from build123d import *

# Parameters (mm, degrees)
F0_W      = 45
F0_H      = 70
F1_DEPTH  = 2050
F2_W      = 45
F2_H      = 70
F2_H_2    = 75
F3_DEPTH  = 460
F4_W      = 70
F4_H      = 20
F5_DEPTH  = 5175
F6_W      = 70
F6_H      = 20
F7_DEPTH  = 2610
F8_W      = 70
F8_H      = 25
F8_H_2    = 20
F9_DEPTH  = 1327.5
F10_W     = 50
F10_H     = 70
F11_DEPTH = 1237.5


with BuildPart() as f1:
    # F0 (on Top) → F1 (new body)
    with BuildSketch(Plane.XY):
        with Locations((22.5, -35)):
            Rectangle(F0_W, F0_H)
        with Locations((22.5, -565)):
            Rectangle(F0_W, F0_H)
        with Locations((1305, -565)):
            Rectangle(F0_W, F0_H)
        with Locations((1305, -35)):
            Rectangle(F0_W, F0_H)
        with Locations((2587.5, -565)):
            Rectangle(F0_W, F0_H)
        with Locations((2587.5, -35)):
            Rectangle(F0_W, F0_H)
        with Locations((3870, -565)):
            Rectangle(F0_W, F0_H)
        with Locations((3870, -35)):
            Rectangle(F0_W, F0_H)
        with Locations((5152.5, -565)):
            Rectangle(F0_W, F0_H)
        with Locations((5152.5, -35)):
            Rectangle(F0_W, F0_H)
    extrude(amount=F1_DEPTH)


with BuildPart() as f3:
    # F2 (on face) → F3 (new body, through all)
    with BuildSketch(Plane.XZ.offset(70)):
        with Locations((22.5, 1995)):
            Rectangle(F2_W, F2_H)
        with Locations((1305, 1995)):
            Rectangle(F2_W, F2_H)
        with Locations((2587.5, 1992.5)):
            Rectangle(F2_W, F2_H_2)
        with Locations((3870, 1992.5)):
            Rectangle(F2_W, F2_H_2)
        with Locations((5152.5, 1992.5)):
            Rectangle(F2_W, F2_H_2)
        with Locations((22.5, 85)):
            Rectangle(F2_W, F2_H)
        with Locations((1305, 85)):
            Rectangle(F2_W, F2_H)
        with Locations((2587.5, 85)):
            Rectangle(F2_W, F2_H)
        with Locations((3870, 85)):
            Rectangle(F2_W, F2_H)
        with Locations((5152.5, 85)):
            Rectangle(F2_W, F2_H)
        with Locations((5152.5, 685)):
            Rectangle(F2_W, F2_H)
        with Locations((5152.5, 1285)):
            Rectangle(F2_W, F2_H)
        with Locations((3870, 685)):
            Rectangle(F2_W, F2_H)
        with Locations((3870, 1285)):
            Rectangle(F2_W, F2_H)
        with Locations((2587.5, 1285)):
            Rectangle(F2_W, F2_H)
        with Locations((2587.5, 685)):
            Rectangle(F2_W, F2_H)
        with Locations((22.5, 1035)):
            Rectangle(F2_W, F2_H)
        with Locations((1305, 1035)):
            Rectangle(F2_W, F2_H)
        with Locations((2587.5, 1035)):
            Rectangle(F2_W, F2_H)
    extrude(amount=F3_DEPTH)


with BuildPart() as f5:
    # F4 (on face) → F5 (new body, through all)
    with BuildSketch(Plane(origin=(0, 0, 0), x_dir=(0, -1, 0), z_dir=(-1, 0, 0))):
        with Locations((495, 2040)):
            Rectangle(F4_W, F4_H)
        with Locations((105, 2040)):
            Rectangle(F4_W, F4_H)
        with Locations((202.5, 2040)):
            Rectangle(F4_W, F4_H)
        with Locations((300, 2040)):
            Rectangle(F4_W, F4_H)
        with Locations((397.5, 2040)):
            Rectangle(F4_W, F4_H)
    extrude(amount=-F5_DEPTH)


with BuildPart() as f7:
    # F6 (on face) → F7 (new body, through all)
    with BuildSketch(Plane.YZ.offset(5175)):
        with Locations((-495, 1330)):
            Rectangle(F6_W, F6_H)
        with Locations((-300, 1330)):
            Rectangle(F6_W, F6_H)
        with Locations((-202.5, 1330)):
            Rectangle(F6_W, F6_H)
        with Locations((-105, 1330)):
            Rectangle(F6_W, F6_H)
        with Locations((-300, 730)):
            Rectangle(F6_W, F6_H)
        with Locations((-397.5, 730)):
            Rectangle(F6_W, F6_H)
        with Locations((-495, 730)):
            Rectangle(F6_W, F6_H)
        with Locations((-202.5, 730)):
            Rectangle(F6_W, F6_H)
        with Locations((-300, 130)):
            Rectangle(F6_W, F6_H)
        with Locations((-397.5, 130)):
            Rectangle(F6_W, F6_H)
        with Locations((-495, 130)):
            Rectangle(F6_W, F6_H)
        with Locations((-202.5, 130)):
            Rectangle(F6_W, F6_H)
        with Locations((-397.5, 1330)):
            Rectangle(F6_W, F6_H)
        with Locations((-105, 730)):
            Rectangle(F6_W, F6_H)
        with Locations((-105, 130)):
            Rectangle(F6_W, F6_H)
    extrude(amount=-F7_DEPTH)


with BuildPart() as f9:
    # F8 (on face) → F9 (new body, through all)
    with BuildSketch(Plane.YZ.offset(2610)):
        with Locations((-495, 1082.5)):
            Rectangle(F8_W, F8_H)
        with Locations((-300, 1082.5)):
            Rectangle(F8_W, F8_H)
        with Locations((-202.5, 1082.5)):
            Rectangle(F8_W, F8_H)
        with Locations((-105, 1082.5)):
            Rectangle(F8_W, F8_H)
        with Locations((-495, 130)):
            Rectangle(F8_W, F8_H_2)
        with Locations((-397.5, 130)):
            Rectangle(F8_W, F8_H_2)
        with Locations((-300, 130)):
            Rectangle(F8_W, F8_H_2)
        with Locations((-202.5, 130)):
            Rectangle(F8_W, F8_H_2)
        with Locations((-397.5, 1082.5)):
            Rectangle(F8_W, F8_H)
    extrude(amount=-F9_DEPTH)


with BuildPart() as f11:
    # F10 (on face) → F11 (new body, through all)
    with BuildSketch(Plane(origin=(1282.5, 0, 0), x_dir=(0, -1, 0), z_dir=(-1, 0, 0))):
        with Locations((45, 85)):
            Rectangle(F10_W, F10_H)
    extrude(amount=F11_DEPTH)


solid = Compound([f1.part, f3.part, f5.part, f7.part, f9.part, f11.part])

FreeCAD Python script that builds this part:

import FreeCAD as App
import Part
import Sketcher

V = App.Vector
Q = App.Units.Quantity


def add_polygon(sketch, points):
    """Adds a closed chain of lines whose ends are joined by coincident constraints."""
    first, n = sketch.GeometryCount, len(points)
    for a, b in zip(points, points[1:] + points[:1]):
        sketch.addGeometry(Part.LineSegment(App.Vector(*a, 0), App.Vector(*b, 0)), False)
    for i in range(n):
        sketch.addConstraint(Sketcher.Constraint("Coincident", first + i, 2, first + (i + 1) % n, 1))

doc = App.newDocument("Part")
body = doc.addObject("PartDesign::Body", "Body")
body.AllowCompound = True

# Sketch on XY plane
sketch1 = doc.addObject("Sketcher::SketchObject", "Sketch")
body.addObject(sketch1)
sketch1.AttachmentSupport = (doc.XY_Plane, [""])
sketch1.MapMode = "FlatFace"
add_polygon(sketch1, [(0, 0), (0, -70), (45, -70), (45, 0)])  # lines 0-3
add_polygon(sketch1, [(0, -530), (0, -600), (45, -600), (45, -530)])  # lines 4-7
add_polygon(sketch1, [(1282.5, -530), (1282.5, -600), (1327.5, -600), (1327.5, -530)])  # lines 8-11
add_polygon(sketch1, [(1282.5, 0), (1282.5, -70), (1327.5, -70), (1327.5, 0)])  # lines 12-15
add_polygon(sketch1, [(2565, -530), (2565, -600), (2610, -600), (2610, -530)])  # lines 16-19
add_polygon(sketch1, [(2565, 0), (2565, -70), (2610, -70), (2610, 0)])  # lines 20-23
add_polygon(sketch1, [(3847.5, -530), (3847.5, -600), (3892.5, -600), (3892.5, -530)])  # lines 24-27
add_polygon(sketch1, [(3847.5, 0), (3847.5, -70), (3892.5, -70), (3892.5, 0)])  # lines 28-31
add_polygon(sketch1, [(5130, -530), (5130, -600), (5175, -600), (5175, -530)])  # lines 32-35
add_polygon(sketch1, [(5130, 0), (5130, -70), (5175, -70), (5175, 0)])  # lines 36-39
sketch1.addConstraint([
    Sketcher.Constraint("Vertical", 0),
    Sketcher.Constraint("Horizontal", 1),
    Sketcher.Constraint("Vertical", 2),
    Sketcher.Constraint("Horizontal", 3),
    Sketcher.Constraint("Vertical", 4),
    Sketcher.Constraint("Horizontal", 5),
    Sketcher.Constraint("Vertical", 6),
    Sketcher.Constraint("Horizontal", 7),
    Sketcher.Constraint("Vertical", 8),
    Sketcher.Constraint("Horizontal", 9),
    Sketcher.Constraint("Vertical", 10),
    Sketcher.Constraint("Horizontal", 11),
    Sketcher.Constraint("Vertical", 12),
    Sketcher.Constraint("Horizontal", 13),
    Sketcher.Constraint("Vertical", 14),
    Sketcher.Constraint("Horizontal", 15),
    Sketcher.Constraint("Vertical", 16),
    Sketcher.Constraint("Horizontal", 17),
    Sketcher.Constraint("Vertical", 18),
    Sketcher.Constraint("Horizontal", 19),
    Sketcher.Constraint("Vertical", 20),
    Sketcher.Constraint("Horizontal", 21),
    Sketcher.Constraint("Vertical", 22),
    Sketcher.Constraint("Horizontal", 23),
    Sketcher.Constraint("Vertical", 24),
    Sketcher.Constraint("Horizontal", 25),
    Sketcher.Constraint("Vertical", 26),
    Sketcher.Constraint("Horizontal", 27),
    Sketcher.Constraint("Vertical", 28),
    Sketcher.Constraint("Horizontal", 29),
    Sketcher.Constraint("Vertical", 30),
    Sketcher.Constraint("Horizontal", 31),
    Sketcher.Constraint("Vertical", 32),
    Sketcher.Constraint("Horizontal", 33),
    Sketcher.Constraint("Vertical", 34),
    Sketcher.Constraint("Horizontal", 35),
    Sketcher.Constraint("Vertical", 36),
    Sketcher.Constraint("Horizontal", 37),
    Sketcher.Constraint("Vertical", 38),
    Sketcher.Constraint("Horizontal", 39),
    Sketcher.Constraint("Coincident", 3, 2, -1, 1),
    Sketcher.Constraint("PointOnObject", 4, 2, -2),
    Sketcher.Constraint("PointOnObject", 14, 2, -1),
    Sketcher.Constraint("PointOnObject", 22, 2, -1),
    Sketcher.Constraint("PointOnObject", 30, 2, -1),
    Sketcher.Constraint("PointOnObject", 38, 2, -1),
    Sketcher.Constraint("Horizontal", 5, 2, 8, 2),
    Sketcher.Constraint("Horizontal", 7, 2, 10, 2),
    Sketcher.Constraint("Horizontal", 1, 2, 12, 2),
    Sketcher.Constraint("Horizontal", 9, 2, 16, 2),
    Sketcher.Constraint("Horizontal", 11, 2, 18, 2),
    Sketcher.Constraint("Horizontal", 13, 2, 20, 2),
    Sketcher.Constraint("Horizontal", 17, 2, 24, 2),
    Sketcher.Constraint("Horizontal", 19, 2, 26, 2),
    Sketcher.Constraint("Horizontal", 21, 2, 28, 2),
    Sketcher.Constraint("Horizontal", 25, 2, 32, 2),
    Sketcher.Constraint("Horizontal", 27, 2, 34, 2),
    Sketcher.Constraint("Horizontal", 29, 2, 36, 2),
    Sketcher.Constraint("Vertical", 2, 2, 5, 2),
    Sketcher.Constraint("Vertical", 11, 2, 12, 2),
    Sketcher.Constraint("Vertical", 10, 2, 13, 2),
    Sketcher.Constraint("Vertical", 19, 2, 20, 2),
    Sketcher.Constraint("Vertical", 18, 2, 21, 2),
    Sketcher.Constraint("Vertical", 27, 2, 28, 2),
    Sketcher.Constraint("Vertical", 26, 2, 29, 2),
    Sketcher.Constraint("Vertical", 35, 2, 36, 2),
    Sketcher.Constraint("Vertical", 34, 2, 37, 2),
    Sketcher.Constraint("Equal", 7, 9),
    Sketcher.Constraint("Equal", 15, 17),
    Sketcher.Constraint("Equal", 23, 25),
    Sketcher.Constraint("Equal", 31, 33),
    Sketcher.Constraint("Equal", 2, 4),
    Sketcher.Constraint("DistanceX", 1, 1, 1, 2, Q("45 mm")),
    Sketcher.Constraint("DistanceY", 0, 2, 0, 1, Q("70 mm")),
    Sketcher.Constraint("DistanceY", 4, 2, -1, 1, Q("600 mm")),
    Sketcher.Constraint("DistanceX", -1, 1, 16, 2, Q("2565 mm")),
    Sketcher.Constraint("DistanceX", -1, 1, 32, 2, Q("5130 mm")),
    Sketcher.Constraint("DistanceX", -1, 1, 8, 2, Q("1282.5 mm")),
    Sketcher.Constraint("DistanceX", -1, 1, 24, 2, Q("3847.5 mm")),
])
pad1 = doc.addObject("PartDesign::Pad", "Pad")
body.addObject(pad1)
pad1.Profile = sketch1
pad1.Length = 2050
body2 = doc.addObject("PartDesign::Body", "Body001")
body2.AllowCompound = True

# Sketch on XZ plane
sketch2 = doc.addObject("Sketcher::SketchObject", "Sketch001")
body2.addObject(sketch2)
sketch2.AttachmentSupport = (doc.getObject("XZ_Plane001"), [""])
sketch2.MapMode = "FlatFace"
sketch2.AttachmentOffset = App.Placement(V(0, 0, 70), App.Rotation())
add_polygon(sketch2, [(0, 2030), (0, 1960), (45, 1960), (45, 2030)])  # lines 0-3
add_polygon(sketch2, [(1282.5, 2030), (1282.5, 1960), (1327.5, 1960), (1327.5, 2030)])  # lines 4-7
add_polygon(sketch2, [(2565, 2030), (2565, 1955), (2610, 1955), (2610, 2030)])  # lines 8-11
add_polygon(sketch2, [(3847.5, 2030), (3847.5, 1955), (3892.5, 1955), (3892.5, 2030)])  # lines 12-15
add_polygon(sketch2, [(5130, 2030), (5130, 1955), (5175, 1955), (5175, 2030)])  # lines 16-19
add_polygon(sketch2, [(0, 120), (0, 50), (45, 50), (45, 120)])  # lines 20-23
add_polygon(sketch2, [(1282.5, 120), (1282.5, 50), (1327.5, 50), (1327.5, 120)])  # lines 24-27
add_polygon(sketch2, [(2565, 120), (2565, 50), (2610, 50), (2610, 120)])  # lines 28-31
add_polygon(sketch2, [(3847.5, 120), (3847.5, 50), (3892.5, 50), (3892.5, 120)])  # lines 32-35
add_polygon(sketch2, [(5130, 120), (5130, 50), (5175, 50), (5175, 120)])  # lines 36-39
add_polygon(sketch2, [(5130, 720), (5130, 650), (5175, 650), (5175, 720)])  # lines 40-43
add_polygon(sketch2, [(5130, 1320), (5130, 1250), (5175, 1250), (5175, 1320)])  # lines 44-47
add_polygon(sketch2, [(3847.5, 720), (3847.5, 650), (3892.5, 650), (3892.5, 720)])  # lines 48-51
add_polygon(sketch2, [(3847.5, 1320), (3847.5, 1250), (3892.5, 1250), (3892.5, 1320)])  # lines 52-55
add_polygon(sketch2, [(2565, 1320), (2565, 1250), (2610, 1250), (2610, 1320)])  # lines 56-59
add_polygon(sketch2, [(2565, 720), (2565, 650), (2610, 650), (2610, 720)])  # lines 60-63
add_polygon(sketch2, [(0, 1070), (0, 1000), (45, 1000), (45, 1070)])  # lines 64-67
add_polygon(sketch2, [(1282.5, 1070), (1282.5, 1000), (1327.5, 1000), (1327.5, 1070)])  # lines 68-71
add_polygon(sketch2, [(2565, 1070), (2565, 1000), (2610, 1000), (2610, 1070)])  # lines 72-75
sketch2.addConstraint([
    Sketcher.Constraint("Vertical", 0),
    Sketcher.Constraint("Horizontal", 1),
    Sketcher.Constraint("Vertical", 2),
    Sketcher.Constraint("Horizontal", 3),
    Sketcher.Constraint("Vertical", 4),
    Sketcher.Constraint("Horizontal", 5),
    Sketcher.Constraint("Vertical", 6),
    Sketcher.Constraint("Horizontal", 7),
    Sketcher.Constraint("Vertical", 8),
    Sketcher.Constraint("Horizontal", 9),
    Sketcher.Constraint("Vertical", 10),
    Sketcher.Constraint("Horizontal", 11),
    Sketcher.Constraint("Vertical", 12),
    Sketcher.Constraint("Horizontal", 13),
    Sketcher.Constraint("Vertical", 14),
    Sketcher.Constraint("Horizontal", 15),
    Sketcher.Constraint("Vertical", 16),
    Sketcher.Constraint("Horizontal", 17),
    Sketcher.Constraint("Vertical", 18),
    Sketcher.Constraint("Horizontal", 19),
    Sketcher.Constraint("Vertical", 20),
    Sketcher.Constraint("Horizontal", 21),
    Sketcher.Constraint("Vertical", 22),
    Sketcher.Constraint("Horizontal", 23),
    Sketcher.Constraint("Vertical", 24),
    Sketcher.Constraint("Horizontal", 25),
    Sketcher.Constraint("Vertical", 26),
    Sketcher.Constraint("Horizontal", 27),
    Sketcher.Constraint("Vertical", 28),
    Sketcher.Constraint("Horizontal", 29),
    Sketcher.Constraint("Vertical", 30),
    Sketcher.Constraint("Horizontal", 31),
    Sketcher.Constraint("Vertical", 32),
    Sketcher.Constraint("Horizontal", 33),
    Sketcher.Constraint("Vertical", 34),
    Sketcher.Constraint("Horizontal", 35),
    Sketcher.Constraint("Vertical", 36),
    Sketcher.Constraint("Horizontal", 37),
    Sketcher.Constraint("Vertical", 38),
    Sketcher.Constraint("Horizontal", 39),
    Sketcher.Constraint("Vertical", 40),
    Sketcher.Constraint("Horizontal", 41),
    Sketcher.Constraint("Vertical", 42),
    Sketcher.Constraint("Horizontal", 43),
    Sketcher.Constraint("Vertical", 44),
    Sketcher.Constraint("Horizontal", 45),
    Sketcher.Constraint("Vertical", 46),
    Sketcher.Constraint("Horizontal", 47),
    Sketcher.Constraint("Vertical", 48),
    Sketcher.Constraint("Horizontal", 49),
    Sketcher.Constraint("Vertical", 50),
    Sketcher.Constraint("Horizontal", 51),
    Sketcher.Constraint("Vertical", 52),
    Sketcher.Constraint("Horizontal", 53),
    Sketcher.Constraint("Vertical", 54),
    Sketcher.Constraint("Horizontal", 55),
    Sketcher.Constraint("Vertical", 56),
    Sketcher.Constraint("Horizontal", 57),
    Sketcher.Constraint("Vertical", 58),
    Sketcher.Constraint("Horizontal", 59),
    Sketcher.Constraint("Vertical", 60),
    Sketcher.Constraint("Horizontal", 61),
    Sketcher.Constraint("Vertical", 62),
    Sketcher.Constraint("Horizontal", 63),
    Sketcher.Constraint("Vertical", 64),
    Sketcher.Constraint("Horizontal", 65),
    Sketcher.Constraint("Vertical", 66),
    Sketcher.Constraint("Horizontal", 67),
    Sketcher.Constraint("Vertical", 68),
    Sketcher.Constraint("Horizontal", 69),
    Sketcher.Constraint("Vertical", 70),
    Sketcher.Constraint("Horizontal", 71),
    Sketcher.Constraint("Vertical", 72),
    Sketcher.Constraint("Horizontal", 73),
    Sketcher.Constraint("Vertical", 74),
    Sketcher.Constraint("Horizontal", 75),
    Sketcher.Constraint("PointOnObject", 0, 2, -2),
    Sketcher.Constraint("PointOnObject", 20, 2, -2),
    Sketcher.Constraint("PointOnObject", 64, 2, -2),
    Sketcher.Constraint("Horizontal", 1, 2, 4, 2),
    Sketcher.Constraint("Horizontal", 3, 2, 6, 2),
    Sketcher.Constraint("Horizontal", 7, 2, 10, 2),
    Sketcher.Constraint("Horizontal", 9, 2, 12, 2),
    Sketcher.Constraint("Horizontal", 11, 2, 14, 2),
    Sketcher.Constraint("Horizontal", 13, 2, 16, 2),
    Sketcher.Constraint("Horizontal", 15, 2, 18, 2),
    Sketcher.Constraint("Horizontal", 21, 2, 24, 2),
    Sketcher.Constraint("Horizontal", 23, 2, 26, 2),
    Sketcher.Constraint("Horizontal", 25, 2, 28, 2),
    Sketcher.Constraint("Horizontal", 27, 2, 30, 2),
    Sketcher.Constraint("Horizontal", 29, 2, 32, 2),
    Sketcher.Constraint("Horizontal", 31, 2, 34, 2),
    Sketcher.Constraint("Horizontal", 33, 2, 36, 2),
    Sketcher.Constraint("Horizontal", 35, 2, 38, 2),
    Sketcher.Constraint("Horizontal", 41, 2, 48, 2),
    Sketcher.Constraint("Horizontal", 43, 2, 50, 2),
    Sketcher.Constraint("Horizontal", 45, 2, 52, 2),
    Sketcher.Constraint("Horizontal", 47, 2, 54, 2),
    Sketcher.Constraint("Horizontal", 53, 2, 56, 2),
    Sketcher.Constraint("Horizontal", 55, 2, 58, 2),
    Sketcher.Constraint("Horizontal", 49, 2, 60, 2),
    Sketcher.Constraint("Horizontal", 51, 2, 62, 2),
    Sketcher.Constraint("Horizontal", 65, 2, 68, 2),
    Sketcher.Constraint("Horizontal", 67, 2, 70, 2),
    Sketcher.Constraint("Horizontal", 69, 2, 72, 2),
    Sketcher.Constraint("Horizontal", 71, 2, 74, 2),
    Sketcher.Constraint("Vertical", 2, 2, 21, 2),
    Sketcher.Constraint("Vertical", 7, 2, 24, 2),
    Sketcher.Constraint("Vertical", 6, 2, 25, 2),
    Sketcher.Constraint("Vertical", 11, 2, 28, 2),
    Sketcher.Constraint("Vertical", 10, 2, 29, 2),
    Sketcher.Constraint("Vertical", 15, 2, 32, 2),
    Sketcher.Constraint("Vertical", 14, 2, 33, 2),
    Sketcher.Constraint("Vertical", 19, 2, 36, 2),
    Sketcher.Constraint("Vertical", 18, 2, 37, 2),
    Sketcher.Constraint("Vertical", 39, 2, 40, 2),
    Sketcher.Constraint("Vertical", 38, 2, 41, 2),
    Sketcher.Constraint("Vertical", 43, 2, 44, 2),
    Sketcher.Constraint("Vertical", 42, 2, 45, 2),
    Sketcher.Constraint("Vertical", 35, 2, 48, 2),
    Sketcher.Constraint("Vertical", 34, 2, 49, 2),
    Sketcher.Constraint("Vertical", 51, 2, 52, 2),
    Sketcher.Constraint("Vertical", 50, 2, 53, 2),
    Sketcher.Constraint("Vertical", 31, 2, 56, 2),
    Sketcher.Constraint("Vertical", 30, 2, 57, 2),
    Sketcher.Constraint("Vertical", 59, 2, 60, 2),
    Sketcher.Constraint("Vertical", 58, 2, 61, 2),
    Sketcher.Constraint("Vertical", 22, 2, 65, 2),
    Sketcher.Constraint("Vertical", 27, 2, 68, 2),
    Sketcher.Constraint("Vertical", 26, 2, 69, 2),
    Sketcher.Constraint("Vertical", 63, 2, 72, 2),
    Sketcher.Constraint("Vertical", 62, 2, 73, 2),
    Sketcher.Constraint("Equal", 3, 5),
    Sketcher.Constraint("Equal", 7, 9),
    Sketcher.Constraint("Equal", 11, 13),
    Sketcher.Constraint("Equal", 15, 17),
    Sketcher.Constraint("Equal", 6, 20),
    Sketcher.Constraint("Equal", 38, 40),
    Sketcher.Constraint("Equal", 42, 44),
    Sketcher.Constraint("Equal", 62, 64),
    Sketcher.Constraint("DistanceX", 1, 1, 1, 2, Q("45 mm")),
    Sketcher.Constraint("DistanceY", 0, 2, 0, 1, Q("70 mm")),
    Sketcher.Constraint("DistanceY", 8, 2, 8, 1, Q("75 mm")),
    Sketcher.Constraint("DistanceY", -1, 1, 0, 2, Q("1960 mm")),
    Sketcher.Constraint("DistanceX", -1, 1, 8, 2, Q("2565 mm")),
    Sketcher.Constraint("DistanceX", -1, 1, 16, 2, Q("5130 mm")),
    Sketcher.Constraint("DistanceY", -1, 1, 20, 2, Q("50 mm")),
    Sketcher.Constraint("DistanceY", -1, 1, 40, 2, Q("650 mm")),
    Sketcher.Constraint("DistanceY", -1, 1, 44, 2, Q("1250 mm")),
    Sketcher.Constraint("DistanceY", -1, 1, 64, 2, Q("1000 mm")),
    Sketcher.Constraint("DistanceX", -1, 1, 4, 2, Q("1282.5 mm")),
    Sketcher.Constraint("DistanceX", -1, 1, 12, 2, Q("3847.5 mm")),
])
pad2 = doc.addObject("PartDesign::Pad", "Pad001")
body2.addObject(pad2)
pad2.Profile = sketch2
pad2.Length = 460
body3 = doc.addObject("PartDesign::Body", "Body002")
body3.AllowCompound = True

# Sketch on YZ plane
sketch3 = doc.addObject("Sketcher::SketchObject", "Sketch002")
body3.addObject(sketch3)
sketch3.AttachmentSupport = (doc.getObject("YZ_Plane002"), [""])
sketch3.MapMode = "FlatFace"
add_polygon(sketch3, [(-460, 2050), (-460, 2030), (-530, 2030), (-530, 2050)])  # lines 0-3
add_polygon(sketch3, [(-70, 2050), (-70, 2030), (-140, 2030), (-140, 2050)])  # lines 4-7
add_polygon(sketch3, [(-167.5, 2050), (-167.5, 2030), (-237.5, 2030), (-237.5, 2050)])  # lines 8-11
add_polygon(sketch3, [(-265, 2050), (-265, 2030), (-335, 2030), (-335, 2050)])  # lines 12-15
add_polygon(sketch3, [(-362.5, 2050), (-362.5, 2030), (-432.5, 2030), (-432.5, 2050)])  # lines 16-19
sketch3.addConstraint([
    Sketcher.Constraint("Vertical", 0),
    Sketcher.Constraint("Horizontal", 1),
    Sketcher.Constraint("Vertical", 2),
    Sketcher.Constraint("Horizontal", 3),
    Sketcher.Constraint("Vertical", 4),
    Sketcher.Constraint("Horizontal", 5),
    Sketcher.Constraint("Vertical", 6),
    Sketcher.Constraint("Horizontal", 7),
    Sketcher.Constraint("Vertical", 8),
    Sketcher.Constraint("Horizontal", 9),
    Sketcher.Constraint("Vertical", 10),
    Sketcher.Constraint("Horizontal", 11),
    Sketcher.Constraint("Vertical", 12),
    Sketcher.Constraint("Horizontal", 13),
    Sketcher.Constraint("Vertical", 14),
    Sketcher.Constraint("Horizontal", 15),
    Sketcher.Constraint("Vertical", 16),
    Sketcher.Constraint("Horizontal", 17),
    Sketcher.Constraint("Vertical", 18),
    Sketcher.Constraint("Horizontal", 19),
    Sketcher.Constraint("Horizontal", 1, 2, 4, 2),
    Sketcher.Constraint("Horizontal", 3, 2, 6, 2),
    Sketcher.Constraint("Horizontal", 5, 2, 8, 2),
    Sketcher.Constraint("Horizontal", 7, 2, 10, 2),
    Sketcher.Constraint("Horizontal", 9, 2, 12, 2),
    Sketcher.Constraint("Horizontal", 11, 2, 14, 2),
    Sketcher.Constraint("Horizontal", 13, 2, 16, 2),
    Sketcher.Constraint("Horizontal", 15, 2, 18, 2),
    Sketcher.Constraint("Equal", 3, 5),
    Sketcher.Constraint("Equal", 7, 9),
    Sketcher.Constraint("Equal", 11, 13),
    Sketcher.Constraint("Equal", 15, 17),
    Sketcher.Constraint("DistanceX", 1, 2, 1, 1, Q("70 mm")),
    Sketcher.Constraint("DistanceY", 0, 2, 0, 1, Q("20 mm")),
    Sketcher.Constraint("DistanceX", 0, 2, -1, 1, Q("460 mm")),
    Sketcher.Constraint("DistanceY", -1, 1, 0, 2, Q("2030 mm")),
    Sketcher.Constraint("DistanceX", 4, 2, -1, 1, Q("70 mm")),
    Sketcher.Constraint("DistanceX", 12, 2, -1, 1, Q("265 mm")),
    Sketcher.Constraint("DistanceX", 8, 2, -1, 1, Q("167.5 mm")),
    Sketcher.Constraint("DistanceX", 16, 2, -1, 1, Q("362.5 mm")),
])
pad3 = doc.addObject("PartDesign::Pad", "Pad002")
body3.addObject(pad3)
pad3.Profile = sketch3
pad3.Length = 5175
body4 = doc.addObject("PartDesign::Body", "Body003")
body4.AllowCompound = True

# Sketch on YZ plane
sketch4 = doc.addObject("Sketcher::SketchObject", "Sketch003")
body4.addObject(sketch4)
sketch4.AttachmentSupport = (doc.getObject("YZ_Plane003"), [""])
sketch4.MapMode = "FlatFace"
sketch4.AttachmentOffset = App.Placement(V(0, 0, 5175), App.Rotation())
add_polygon(sketch4, [(-530, 1340), (-530, 1320), (-460, 1320), (-460, 1340)])  # lines 0-3
add_polygon(sketch4, [(-335, 1340), (-335, 1320), (-265, 1320), (-265, 1340)])  # lines 4-7
add_polygon(sketch4, [(-237.5, 1340), (-237.5, 1320), (-167.5, 1320), (-167.5, 1340)])  # lines 8-11
add_polygon(sketch4, [(-140, 1340), (-140, 1320), (-70, 1320), (-70, 1340)])  # lines 12-15
add_polygon(sketch4, [(-335, 740), (-335, 720), (-265, 720), (-265, 740)])  # lines 16-19
add_polygon(sketch4, [(-432.5, 740), (-432.5, 720), (-362.5, 720), (-362.5, 740)])  # lines 20-23
add_polygon(sketch4, [(-530, 740), (-530, 720), (-460, 720), (-460, 740)])  # lines 24-27
add_polygon(sketch4, [(-237.5, 740), (-237.5, 720), (-167.5, 720), (-167.5, 740)])  # lines 28-31
add_polygon(sketch4, [(-335, 140), (-335, 120), (-265, 120), (-265, 140)])  # lines 32-35
add_polygon(sketch4, [(-432.5, 140), (-432.5, 120), (-362.5, 120), (-362.5, 140)])  # lines 36-39
add_polygon(sketch4, [(-530, 140), (-530, 120), (-460, 120), (-460, 140)])  # lines 40-43
add_polygon(sketch4, [(-237.5, 140), (-237.5, 120), (-167.5, 120), (-167.5, 140)])  # lines 44-47
add_polygon(sketch4, [(-432.5, 1340), (-432.5, 1320), (-362.5, 1320), (-362.5, 1340)])  # lines 48-51
add_polygon(sketch4, [(-140, 740), (-140, 720), (-70, 720), (-70, 740)])  # lines 52-55
add_polygon(sketch4, [(-140, 140), (-140, 120), (-70, 120), (-70, 140)])  # lines 56-59
sketch4.addConstraint([
    Sketcher.Constraint("Vertical", 0),
    Sketcher.Constraint("Horizontal", 1),
    Sketcher.Constraint("Vertical", 2),
    Sketcher.Constraint("Horizontal", 3),
    Sketcher.Constraint("Vertical", 4),
    Sketcher.Constraint("Horizontal", 5),
    Sketcher.Constraint("Vertical", 6),
    Sketcher.Constraint("Horizontal", 7),
    Sketcher.Constraint("Vertical", 8),
    Sketcher.Constraint("Horizontal", 9),
    Sketcher.Constraint("Vertical", 10),
    Sketcher.Constraint("Horizontal", 11),
    Sketcher.Constraint("Vertical", 12),
    Sketcher.Constraint("Horizontal", 13),
    Sketcher.Constraint("Vertical", 14),
    Sketcher.Constraint("Horizontal", 15),
    Sketcher.Constraint("Vertical", 16),
    Sketcher.Constraint("Horizontal", 17),
    Sketcher.Constraint("Vertical", 18),
    Sketcher.Constraint("Horizontal", 19),
    Sketcher.Constraint("Vertical", 20),
    Sketcher.Constraint("Horizontal", 21),
    Sketcher.Constraint("Vertical", 22),
    Sketcher.Constraint("Horizontal", 23),
    Sketcher.Constraint("Vertical", 24),
    Sketcher.Constraint("Horizontal", 25),
    Sketcher.Constraint("Vertical", 26),
    Sketcher.Constraint("Horizontal", 27),
    Sketcher.Constraint("Vertical", 28),
    Sketcher.Constraint("Horizontal", 29),
    Sketcher.Constraint("Vertical", 30),
    Sketcher.Constraint("Horizontal", 31),
    Sketcher.Constraint("Vertical", 32),
    Sketcher.Constraint("Horizontal", 33),
    Sketcher.Constraint("Vertical", 34),
    Sketcher.Constraint("Horizontal", 35),
    Sketcher.Constraint("Vertical", 36),
    Sketcher.Constraint("Horizontal", 37),
    Sketcher.Constraint("Vertical", 38),
    Sketcher.Constraint("Horizontal", 39),
    Sketcher.Constraint("Vertical", 40),
    Sketcher.Constraint("Horizontal", 41),
    Sketcher.Constraint("Vertical", 42),
    Sketcher.Constraint("Horizontal", 43),
    Sketcher.Constraint("Vertical", 44),
    Sketcher.Constraint("Horizontal", 45),
    Sketcher.Constraint("Vertical", 46),
    Sketcher.Constraint("Horizontal", 47),
    Sketcher.Constraint("Vertical", 48),
    Sketcher.Constraint("Horizontal", 49),
    Sketcher.Constraint("Vertical", 50),
    Sketcher.Constraint("Horizontal", 51),
    Sketcher.Constraint("Vertical", 52),
    Sketcher.Constraint("Horizontal", 53),
    Sketcher.Constraint("Vertical", 54),
    Sketcher.Constraint("Horizontal", 55),
    Sketcher.Constraint("Vertical", 56),
    Sketcher.Constraint("Horizontal", 57),
    Sketcher.Constraint("Vertical", 58),
    Sketcher.Constraint("Horizontal", 59),
    Sketcher.Constraint("Horizontal", 1, 2, 4, 2),
    Sketcher.Constraint("Horizontal", 3, 2, 6, 2),
    Sketcher.Constraint("Horizontal", 5, 2, 8, 2),
    Sketcher.Constraint("Horizontal", 7, 2, 10, 2),
    Sketcher.Constraint("Horizontal", 9, 2, 12, 2),
    Sketcher.Constraint("Horizontal", 11, 2, 14, 2),
    Sketcher.Constraint("Horizontal", 17, 2, 20, 2),
    Sketcher.Constraint("Horizontal", 19, 2, 22, 2),
    Sketcher.Constraint("Horizontal", 21, 2, 24, 2),
    Sketcher.Constraint("Horizontal", 23, 2, 26, 2),
    Sketcher.Constraint("Horizontal", 25, 2, 28, 2),
    Sketcher.Constraint("Horizontal", 27, 2, 30, 2),
    Sketcher.Constraint("Horizontal", 33, 2, 36, 2),
    Sketcher.Constraint("Horizontal", 35, 2, 38, 2),
    Sketcher.Constraint("Horizontal", 37, 2, 40, 2),
    Sketcher.Constraint("Horizontal", 39, 2, 42, 2),
    Sketcher.Constraint("Horizontal", 41, 2, 44, 2),
    Sketcher.Constraint("Horizontal", 43, 2, 46, 2),
    Sketcher.Constraint("Horizontal", 13, 2, 48, 2),
    Sketcher.Constraint("Horizontal", 15, 2, 50, 2),
    Sketcher.Constraint("Horizontal", 29, 2, 52, 2),
    Sketcher.Constraint("Horizontal", 31, 2, 54, 2),
    Sketcher.Constraint("Horizontal", 45, 2, 56, 2),
    Sketcher.Constraint("Horizontal", 47, 2, 58, 2),
    Sketcher.Constraint("Vertical", 7, 2, 16, 2),
    Sketcher.Constraint("Vertical", 6, 2, 17, 2),
    Sketcher.Constraint("Vertical", 3, 2, 24, 2),
    Sketcher.Constraint("Vertical", 2, 2, 25, 2),
    Sketcher.Constraint("Vertical", 11, 2, 28, 2),
    Sketcher.Constraint("Vertical", 10, 2, 29, 2),
    Sketcher.Constraint("Vertical", 19, 2, 32, 2),
    Sketcher.Constraint("Vertical", 18, 2, 33, 2),
    Sketcher.Constraint("Vertical", 23, 2, 36, 2),
    Sketcher.Constraint("Vertical", 22, 2, 37, 2),
    Sketcher.Constraint("Vertical", 27, 2, 40, 2),
    Sketcher.Constraint("Vertical", 26, 2, 41, 2),
    Sketcher.Constraint("Vertical", 31, 2, 44, 2),
    Sketcher.Constraint("Vertical", 30, 2, 45, 2),
    Sketcher.Constraint("Vertical", 39, 2, 48, 2),
    Sketcher.Constraint("Vertical", 38, 2, 49, 2),
    Sketcher.Constraint("Vertical", 15, 2, 52, 2),
    Sketcher.Constraint("Vertical", 14, 2, 53, 2),
    Sketcher.Constraint("Vertical", 55, 2, 56, 2),
    Sketcher.Constraint("Vertical", 54, 2, 57, 2),
    Sketcher.Constraint("Equal", 3, 5),
    Sketcher.Constraint("Equal", 7, 9),
    Sketcher.Constraint("Equal", 11, 13),
    Sketcher.Constraint("Equal", 19, 21),
    Sketcher.Constraint("Equal", 14, 16),
    Sketcher.Constraint("Equal", 30, 32),
    Sketcher.Constraint("DistanceX", 1, 1, 1, 2, Q("70 mm")),
    Sketcher.Constraint("DistanceY", 0, 2, 0, 1, Q("20 mm")),
    Sketcher.Constraint("DistanceX", 0, 2, -1, 1, Q("530 mm")),
    Sketcher.Constraint("DistanceY", -1, 1, 0, 2, Q("1320 mm")),
    Sketcher.Constraint("DistanceX", 4, 2, -1, 1, Q("335 mm")),
    Sketcher.Constraint("DistanceX", 12, 2, -1, 1, Q("140 mm")),
    Sketcher.Constraint("DistanceY", -1, 1, 16, 2, Q("720 mm")),
    Sketcher.Constraint("DistanceY", -1, 1, 32, 2, Q("120 mm")),
    Sketcher.Constraint("DistanceX", 21, 2, 28, 2, Q("125 mm")),
    Sketcher.Constraint("DistanceX", 8, 2, -1, 1, Q("237.5 mm")),
])
pad4 = doc.addObject("PartDesign::Pad", "Pad003")
body4.addObject(pad4)
pad4.Profile = sketch4
pad4.Length = 2610
pad4.Reversed = True
body5 = doc.addObject("PartDesign::Body", "Body004")
body5.AllowCompound = True

# Sketch on YZ plane
sketch5 = doc.addObject("Sketcher::SketchObject", "Sketch004")
body5.addObject(sketch5)
sketch5.AttachmentSupport = (doc.getObject("YZ_Plane004"), [""])
sketch5.MapMode = "FlatFace"
sketch5.AttachmentOffset = App.Placement(V(0, 0, 2610), App.Rotation())
add_polygon(sketch5, [(-530, 1095), (-530, 1070), (-460, 1070), (-460, 1095)])  # lines 0-3
add_polygon(sketch5, [(-335, 1095), (-335, 1070), (-265, 1070), (-265, 1095)])  # lines 4-7
add_polygon(sketch5, [(-237.5, 1095), (-237.5, 1070), (-167.5, 1070), (-167.5, 1095)])  # lines 8-11
add_polygon(sketch5, [(-140, 1095), (-140, 1070), (-70, 1070), (-70, 1095)])  # lines 12-15
add_polygon(sketch5, [(-530, 140), (-530, 120), (-460, 120), (-460, 140)])  # lines 16-19
add_polygon(sketch5, [(-432.5, 140), (-432.5, 120), (-362.5, 120), (-362.5, 140)])  # lines 20-23
add_polygon(sketch5, [(-335, 140), (-335, 120), (-265, 120), (-265, 140)])  # lines 24-27
add_polygon(sketch5, [(-237.5, 140), (-237.5, 120), (-167.5, 120), (-167.5, 140)])  # lines 28-31
add_polygon(sketch5, [(-432.5, 1095), (-432.5, 1070), (-362.5, 1070), (-362.5, 1095)])  # lines 32-35
sketch5.addConstraint([
    Sketcher.Constraint("Vertical", 0),
    Sketcher.Constraint("Horizontal", 1),
    Sketcher.Constraint("Vertical", 2),
    Sketcher.Constraint("Horizontal", 3),
    Sketcher.Constraint("Vertical", 4),
    Sketcher.Constraint("Horizontal", 5),
    Sketcher.Constraint("Vertical", 6),
    Sketcher.Constraint("Horizontal", 7),
    Sketcher.Constraint("Vertical", 8),
    Sketcher.Constraint("Horizontal", 9),
    Sketcher.Constraint("Vertical", 10),
    Sketcher.Constraint("Horizontal", 11),
    Sketcher.Constraint("Vertical", 12),
    Sketcher.Constraint("Horizontal", 13),
    Sketcher.Constraint("Vertical", 14),
    Sketcher.Constraint("Horizontal", 15),
    Sketcher.Constraint("Vertical", 16),
    Sketcher.Constraint("Horizontal", 17),
    Sketcher.Constraint("Vertical", 18),
    Sketcher.Constraint("Horizontal", 19),
    Sketcher.Constraint("Vertical", 20),
    Sketcher.Constraint("Horizontal", 21),
    Sketcher.Constraint("Vertical", 22),
    Sketcher.Constraint("Horizontal", 23),
    Sketcher.Constraint("Vertical", 24),
    Sketcher.Constraint("Horizontal", 25),
    Sketcher.Constraint("Vertical", 26),
    Sketcher.Constraint("Horizontal", 27),
    Sketcher.Constraint("Vertical", 28),
    Sketcher.Constraint("Horizontal", 29),
    Sketcher.Constraint("Vertical", 30),
    Sketcher.Constraint("Horizontal", 31),
    Sketcher.Constraint("Vertical", 32),
    Sketcher.Constraint("Horizontal", 33),
    Sketcher.Constraint("Vertical", 34),
    Sketcher.Constraint("Horizontal", 35),
    Sketcher.Constraint("Horizontal", 1, 2, 4, 2),
    Sketcher.Constraint("Horizontal", 3, 2, 6, 2),
    Sketcher.Constraint("Horizontal", 5, 2, 8, 2),
    Sketcher.Constraint("Horizontal", 7, 2, 10, 2),
    Sketcher.Constraint("Horizontal", 9, 2, 12, 2),
    Sketcher.Constraint("Horizontal", 11, 2, 14, 2),
    Sketcher.Constraint("Horizontal", 17, 2, 20, 2),
    Sketcher.Constraint("Horizontal", 19, 2, 22, 2),
    Sketcher.Constraint("Horizontal", 21, 2, 24, 2),
    Sketcher.Constraint("Horizontal", 23, 2, 26, 2),
    Sketcher.Constraint("Horizontal", 25, 2, 28, 2),
    Sketcher.Constraint("Horizontal", 27, 2, 30, 2),
    Sketcher.Constraint("Horizontal", 13, 2, 32, 2),
    Sketcher.Constraint("Horizontal", 15, 2, 34, 2),
    Sketcher.Constraint("Vertical", 3, 2, 16, 2),
    Sketcher.Constraint("Vertical", 2, 2, 17, 2),
    Sketcher.Constraint("Vertical", 7, 2, 24, 2),
    Sketcher.Constraint("Vertical", 6, 2, 25, 2),
    Sketcher.Constraint("Vertical", 11, 2, 28, 2),
    Sketcher.Constraint("Vertical", 10, 2, 29, 2),
    Sketcher.Constraint("Vertical", 23, 2, 32, 2),
    Sketcher.Constraint("Vertical", 22, 2, 33, 2),
    Sketcher.Constraint("Equal", 3, 5),
    Sketcher.Constraint("Equal", 7, 9),
    Sketcher.Constraint("Equal", 11, 13),
    Sketcher.Constraint("Equal", 19, 21),
    Sketcher.Constraint("DistanceX", 1, 1, 1, 2, Q("70 mm")),
    Sketcher.Constraint("DistanceY", 0, 2, 0, 1, Q("25 mm")),
    Sketcher.Constraint("DistanceY", 16, 2, 16, 1, Q("20 mm")),
    Sketcher.Constraint("DistanceX", 0, 2, -1, 1, Q("530 mm")),
    Sketcher.Constraint("DistanceY", -1, 1, 0, 2, Q("1070 mm")),
    Sketcher.Constraint("DistanceX", 4, 2, -1, 1, Q("335 mm")),
    Sketcher.Constraint("DistanceX", 12, 2, -1, 1, Q("140 mm")),
    Sketcher.Constraint("DistanceY", -1, 1, 16, 2, Q("120 mm")),
    Sketcher.Constraint("DistanceX", 21, 2, 28, 2, Q("125 mm")),
    Sketcher.Constraint("DistanceX", 8, 2, -1, 1, Q("237.5 mm")),
])
pad5 = doc.addObject("PartDesign::Pad", "Pad004")
body5.addObject(pad5)
pad5.Profile = sketch5
pad5.Length = 1327.5
pad5.Reversed = True
body6 = doc.addObject("PartDesign::Body", "Body005")

# Sketch on YZ plane
sketch6 = doc.addObject("Sketcher::SketchObject", "Sketch005")
body6.addObject(sketch6)
sketch6.AttachmentSupport = (doc.getObject("YZ_Plane005"), [""])
sketch6.MapMode = "FlatFace"
sketch6.AttachmentOffset = App.Placement(V(0, 0, 1282.5), App.Rotation())
add_polygon(sketch6, [(-20, 120), (-20, 50), (-70, 50), (-70, 120)])  # lines 0-3
sketch6.addConstraint([
    Sketcher.Constraint("Vertical", 0),
    Sketcher.Constraint("Horizontal", 1),
    Sketcher.Constraint("Vertical", 2),
    Sketcher.Constraint("Horizontal", 3),
    Sketcher.Constraint("DistanceX", 1, 2, 1, 1, Q("50 mm")),
    Sketcher.Constraint("DistanceY", 0, 2, 0, 1, Q("70 mm")),
    Sketcher.Constraint("DistanceX", 0, 2, -1, 1, Q("20 mm")),
    Sketcher.Constraint("DistanceY", -1, 1, 0, 2, Q("50 mm")),
])
pad6 = doc.addObject("PartDesign::Pad", "Pad005")
body6.addObject(pad6)
pad6.Profile = sketch6
pad6.Length = 1237.5
pad6.Reversed = True

doc.recompute()
